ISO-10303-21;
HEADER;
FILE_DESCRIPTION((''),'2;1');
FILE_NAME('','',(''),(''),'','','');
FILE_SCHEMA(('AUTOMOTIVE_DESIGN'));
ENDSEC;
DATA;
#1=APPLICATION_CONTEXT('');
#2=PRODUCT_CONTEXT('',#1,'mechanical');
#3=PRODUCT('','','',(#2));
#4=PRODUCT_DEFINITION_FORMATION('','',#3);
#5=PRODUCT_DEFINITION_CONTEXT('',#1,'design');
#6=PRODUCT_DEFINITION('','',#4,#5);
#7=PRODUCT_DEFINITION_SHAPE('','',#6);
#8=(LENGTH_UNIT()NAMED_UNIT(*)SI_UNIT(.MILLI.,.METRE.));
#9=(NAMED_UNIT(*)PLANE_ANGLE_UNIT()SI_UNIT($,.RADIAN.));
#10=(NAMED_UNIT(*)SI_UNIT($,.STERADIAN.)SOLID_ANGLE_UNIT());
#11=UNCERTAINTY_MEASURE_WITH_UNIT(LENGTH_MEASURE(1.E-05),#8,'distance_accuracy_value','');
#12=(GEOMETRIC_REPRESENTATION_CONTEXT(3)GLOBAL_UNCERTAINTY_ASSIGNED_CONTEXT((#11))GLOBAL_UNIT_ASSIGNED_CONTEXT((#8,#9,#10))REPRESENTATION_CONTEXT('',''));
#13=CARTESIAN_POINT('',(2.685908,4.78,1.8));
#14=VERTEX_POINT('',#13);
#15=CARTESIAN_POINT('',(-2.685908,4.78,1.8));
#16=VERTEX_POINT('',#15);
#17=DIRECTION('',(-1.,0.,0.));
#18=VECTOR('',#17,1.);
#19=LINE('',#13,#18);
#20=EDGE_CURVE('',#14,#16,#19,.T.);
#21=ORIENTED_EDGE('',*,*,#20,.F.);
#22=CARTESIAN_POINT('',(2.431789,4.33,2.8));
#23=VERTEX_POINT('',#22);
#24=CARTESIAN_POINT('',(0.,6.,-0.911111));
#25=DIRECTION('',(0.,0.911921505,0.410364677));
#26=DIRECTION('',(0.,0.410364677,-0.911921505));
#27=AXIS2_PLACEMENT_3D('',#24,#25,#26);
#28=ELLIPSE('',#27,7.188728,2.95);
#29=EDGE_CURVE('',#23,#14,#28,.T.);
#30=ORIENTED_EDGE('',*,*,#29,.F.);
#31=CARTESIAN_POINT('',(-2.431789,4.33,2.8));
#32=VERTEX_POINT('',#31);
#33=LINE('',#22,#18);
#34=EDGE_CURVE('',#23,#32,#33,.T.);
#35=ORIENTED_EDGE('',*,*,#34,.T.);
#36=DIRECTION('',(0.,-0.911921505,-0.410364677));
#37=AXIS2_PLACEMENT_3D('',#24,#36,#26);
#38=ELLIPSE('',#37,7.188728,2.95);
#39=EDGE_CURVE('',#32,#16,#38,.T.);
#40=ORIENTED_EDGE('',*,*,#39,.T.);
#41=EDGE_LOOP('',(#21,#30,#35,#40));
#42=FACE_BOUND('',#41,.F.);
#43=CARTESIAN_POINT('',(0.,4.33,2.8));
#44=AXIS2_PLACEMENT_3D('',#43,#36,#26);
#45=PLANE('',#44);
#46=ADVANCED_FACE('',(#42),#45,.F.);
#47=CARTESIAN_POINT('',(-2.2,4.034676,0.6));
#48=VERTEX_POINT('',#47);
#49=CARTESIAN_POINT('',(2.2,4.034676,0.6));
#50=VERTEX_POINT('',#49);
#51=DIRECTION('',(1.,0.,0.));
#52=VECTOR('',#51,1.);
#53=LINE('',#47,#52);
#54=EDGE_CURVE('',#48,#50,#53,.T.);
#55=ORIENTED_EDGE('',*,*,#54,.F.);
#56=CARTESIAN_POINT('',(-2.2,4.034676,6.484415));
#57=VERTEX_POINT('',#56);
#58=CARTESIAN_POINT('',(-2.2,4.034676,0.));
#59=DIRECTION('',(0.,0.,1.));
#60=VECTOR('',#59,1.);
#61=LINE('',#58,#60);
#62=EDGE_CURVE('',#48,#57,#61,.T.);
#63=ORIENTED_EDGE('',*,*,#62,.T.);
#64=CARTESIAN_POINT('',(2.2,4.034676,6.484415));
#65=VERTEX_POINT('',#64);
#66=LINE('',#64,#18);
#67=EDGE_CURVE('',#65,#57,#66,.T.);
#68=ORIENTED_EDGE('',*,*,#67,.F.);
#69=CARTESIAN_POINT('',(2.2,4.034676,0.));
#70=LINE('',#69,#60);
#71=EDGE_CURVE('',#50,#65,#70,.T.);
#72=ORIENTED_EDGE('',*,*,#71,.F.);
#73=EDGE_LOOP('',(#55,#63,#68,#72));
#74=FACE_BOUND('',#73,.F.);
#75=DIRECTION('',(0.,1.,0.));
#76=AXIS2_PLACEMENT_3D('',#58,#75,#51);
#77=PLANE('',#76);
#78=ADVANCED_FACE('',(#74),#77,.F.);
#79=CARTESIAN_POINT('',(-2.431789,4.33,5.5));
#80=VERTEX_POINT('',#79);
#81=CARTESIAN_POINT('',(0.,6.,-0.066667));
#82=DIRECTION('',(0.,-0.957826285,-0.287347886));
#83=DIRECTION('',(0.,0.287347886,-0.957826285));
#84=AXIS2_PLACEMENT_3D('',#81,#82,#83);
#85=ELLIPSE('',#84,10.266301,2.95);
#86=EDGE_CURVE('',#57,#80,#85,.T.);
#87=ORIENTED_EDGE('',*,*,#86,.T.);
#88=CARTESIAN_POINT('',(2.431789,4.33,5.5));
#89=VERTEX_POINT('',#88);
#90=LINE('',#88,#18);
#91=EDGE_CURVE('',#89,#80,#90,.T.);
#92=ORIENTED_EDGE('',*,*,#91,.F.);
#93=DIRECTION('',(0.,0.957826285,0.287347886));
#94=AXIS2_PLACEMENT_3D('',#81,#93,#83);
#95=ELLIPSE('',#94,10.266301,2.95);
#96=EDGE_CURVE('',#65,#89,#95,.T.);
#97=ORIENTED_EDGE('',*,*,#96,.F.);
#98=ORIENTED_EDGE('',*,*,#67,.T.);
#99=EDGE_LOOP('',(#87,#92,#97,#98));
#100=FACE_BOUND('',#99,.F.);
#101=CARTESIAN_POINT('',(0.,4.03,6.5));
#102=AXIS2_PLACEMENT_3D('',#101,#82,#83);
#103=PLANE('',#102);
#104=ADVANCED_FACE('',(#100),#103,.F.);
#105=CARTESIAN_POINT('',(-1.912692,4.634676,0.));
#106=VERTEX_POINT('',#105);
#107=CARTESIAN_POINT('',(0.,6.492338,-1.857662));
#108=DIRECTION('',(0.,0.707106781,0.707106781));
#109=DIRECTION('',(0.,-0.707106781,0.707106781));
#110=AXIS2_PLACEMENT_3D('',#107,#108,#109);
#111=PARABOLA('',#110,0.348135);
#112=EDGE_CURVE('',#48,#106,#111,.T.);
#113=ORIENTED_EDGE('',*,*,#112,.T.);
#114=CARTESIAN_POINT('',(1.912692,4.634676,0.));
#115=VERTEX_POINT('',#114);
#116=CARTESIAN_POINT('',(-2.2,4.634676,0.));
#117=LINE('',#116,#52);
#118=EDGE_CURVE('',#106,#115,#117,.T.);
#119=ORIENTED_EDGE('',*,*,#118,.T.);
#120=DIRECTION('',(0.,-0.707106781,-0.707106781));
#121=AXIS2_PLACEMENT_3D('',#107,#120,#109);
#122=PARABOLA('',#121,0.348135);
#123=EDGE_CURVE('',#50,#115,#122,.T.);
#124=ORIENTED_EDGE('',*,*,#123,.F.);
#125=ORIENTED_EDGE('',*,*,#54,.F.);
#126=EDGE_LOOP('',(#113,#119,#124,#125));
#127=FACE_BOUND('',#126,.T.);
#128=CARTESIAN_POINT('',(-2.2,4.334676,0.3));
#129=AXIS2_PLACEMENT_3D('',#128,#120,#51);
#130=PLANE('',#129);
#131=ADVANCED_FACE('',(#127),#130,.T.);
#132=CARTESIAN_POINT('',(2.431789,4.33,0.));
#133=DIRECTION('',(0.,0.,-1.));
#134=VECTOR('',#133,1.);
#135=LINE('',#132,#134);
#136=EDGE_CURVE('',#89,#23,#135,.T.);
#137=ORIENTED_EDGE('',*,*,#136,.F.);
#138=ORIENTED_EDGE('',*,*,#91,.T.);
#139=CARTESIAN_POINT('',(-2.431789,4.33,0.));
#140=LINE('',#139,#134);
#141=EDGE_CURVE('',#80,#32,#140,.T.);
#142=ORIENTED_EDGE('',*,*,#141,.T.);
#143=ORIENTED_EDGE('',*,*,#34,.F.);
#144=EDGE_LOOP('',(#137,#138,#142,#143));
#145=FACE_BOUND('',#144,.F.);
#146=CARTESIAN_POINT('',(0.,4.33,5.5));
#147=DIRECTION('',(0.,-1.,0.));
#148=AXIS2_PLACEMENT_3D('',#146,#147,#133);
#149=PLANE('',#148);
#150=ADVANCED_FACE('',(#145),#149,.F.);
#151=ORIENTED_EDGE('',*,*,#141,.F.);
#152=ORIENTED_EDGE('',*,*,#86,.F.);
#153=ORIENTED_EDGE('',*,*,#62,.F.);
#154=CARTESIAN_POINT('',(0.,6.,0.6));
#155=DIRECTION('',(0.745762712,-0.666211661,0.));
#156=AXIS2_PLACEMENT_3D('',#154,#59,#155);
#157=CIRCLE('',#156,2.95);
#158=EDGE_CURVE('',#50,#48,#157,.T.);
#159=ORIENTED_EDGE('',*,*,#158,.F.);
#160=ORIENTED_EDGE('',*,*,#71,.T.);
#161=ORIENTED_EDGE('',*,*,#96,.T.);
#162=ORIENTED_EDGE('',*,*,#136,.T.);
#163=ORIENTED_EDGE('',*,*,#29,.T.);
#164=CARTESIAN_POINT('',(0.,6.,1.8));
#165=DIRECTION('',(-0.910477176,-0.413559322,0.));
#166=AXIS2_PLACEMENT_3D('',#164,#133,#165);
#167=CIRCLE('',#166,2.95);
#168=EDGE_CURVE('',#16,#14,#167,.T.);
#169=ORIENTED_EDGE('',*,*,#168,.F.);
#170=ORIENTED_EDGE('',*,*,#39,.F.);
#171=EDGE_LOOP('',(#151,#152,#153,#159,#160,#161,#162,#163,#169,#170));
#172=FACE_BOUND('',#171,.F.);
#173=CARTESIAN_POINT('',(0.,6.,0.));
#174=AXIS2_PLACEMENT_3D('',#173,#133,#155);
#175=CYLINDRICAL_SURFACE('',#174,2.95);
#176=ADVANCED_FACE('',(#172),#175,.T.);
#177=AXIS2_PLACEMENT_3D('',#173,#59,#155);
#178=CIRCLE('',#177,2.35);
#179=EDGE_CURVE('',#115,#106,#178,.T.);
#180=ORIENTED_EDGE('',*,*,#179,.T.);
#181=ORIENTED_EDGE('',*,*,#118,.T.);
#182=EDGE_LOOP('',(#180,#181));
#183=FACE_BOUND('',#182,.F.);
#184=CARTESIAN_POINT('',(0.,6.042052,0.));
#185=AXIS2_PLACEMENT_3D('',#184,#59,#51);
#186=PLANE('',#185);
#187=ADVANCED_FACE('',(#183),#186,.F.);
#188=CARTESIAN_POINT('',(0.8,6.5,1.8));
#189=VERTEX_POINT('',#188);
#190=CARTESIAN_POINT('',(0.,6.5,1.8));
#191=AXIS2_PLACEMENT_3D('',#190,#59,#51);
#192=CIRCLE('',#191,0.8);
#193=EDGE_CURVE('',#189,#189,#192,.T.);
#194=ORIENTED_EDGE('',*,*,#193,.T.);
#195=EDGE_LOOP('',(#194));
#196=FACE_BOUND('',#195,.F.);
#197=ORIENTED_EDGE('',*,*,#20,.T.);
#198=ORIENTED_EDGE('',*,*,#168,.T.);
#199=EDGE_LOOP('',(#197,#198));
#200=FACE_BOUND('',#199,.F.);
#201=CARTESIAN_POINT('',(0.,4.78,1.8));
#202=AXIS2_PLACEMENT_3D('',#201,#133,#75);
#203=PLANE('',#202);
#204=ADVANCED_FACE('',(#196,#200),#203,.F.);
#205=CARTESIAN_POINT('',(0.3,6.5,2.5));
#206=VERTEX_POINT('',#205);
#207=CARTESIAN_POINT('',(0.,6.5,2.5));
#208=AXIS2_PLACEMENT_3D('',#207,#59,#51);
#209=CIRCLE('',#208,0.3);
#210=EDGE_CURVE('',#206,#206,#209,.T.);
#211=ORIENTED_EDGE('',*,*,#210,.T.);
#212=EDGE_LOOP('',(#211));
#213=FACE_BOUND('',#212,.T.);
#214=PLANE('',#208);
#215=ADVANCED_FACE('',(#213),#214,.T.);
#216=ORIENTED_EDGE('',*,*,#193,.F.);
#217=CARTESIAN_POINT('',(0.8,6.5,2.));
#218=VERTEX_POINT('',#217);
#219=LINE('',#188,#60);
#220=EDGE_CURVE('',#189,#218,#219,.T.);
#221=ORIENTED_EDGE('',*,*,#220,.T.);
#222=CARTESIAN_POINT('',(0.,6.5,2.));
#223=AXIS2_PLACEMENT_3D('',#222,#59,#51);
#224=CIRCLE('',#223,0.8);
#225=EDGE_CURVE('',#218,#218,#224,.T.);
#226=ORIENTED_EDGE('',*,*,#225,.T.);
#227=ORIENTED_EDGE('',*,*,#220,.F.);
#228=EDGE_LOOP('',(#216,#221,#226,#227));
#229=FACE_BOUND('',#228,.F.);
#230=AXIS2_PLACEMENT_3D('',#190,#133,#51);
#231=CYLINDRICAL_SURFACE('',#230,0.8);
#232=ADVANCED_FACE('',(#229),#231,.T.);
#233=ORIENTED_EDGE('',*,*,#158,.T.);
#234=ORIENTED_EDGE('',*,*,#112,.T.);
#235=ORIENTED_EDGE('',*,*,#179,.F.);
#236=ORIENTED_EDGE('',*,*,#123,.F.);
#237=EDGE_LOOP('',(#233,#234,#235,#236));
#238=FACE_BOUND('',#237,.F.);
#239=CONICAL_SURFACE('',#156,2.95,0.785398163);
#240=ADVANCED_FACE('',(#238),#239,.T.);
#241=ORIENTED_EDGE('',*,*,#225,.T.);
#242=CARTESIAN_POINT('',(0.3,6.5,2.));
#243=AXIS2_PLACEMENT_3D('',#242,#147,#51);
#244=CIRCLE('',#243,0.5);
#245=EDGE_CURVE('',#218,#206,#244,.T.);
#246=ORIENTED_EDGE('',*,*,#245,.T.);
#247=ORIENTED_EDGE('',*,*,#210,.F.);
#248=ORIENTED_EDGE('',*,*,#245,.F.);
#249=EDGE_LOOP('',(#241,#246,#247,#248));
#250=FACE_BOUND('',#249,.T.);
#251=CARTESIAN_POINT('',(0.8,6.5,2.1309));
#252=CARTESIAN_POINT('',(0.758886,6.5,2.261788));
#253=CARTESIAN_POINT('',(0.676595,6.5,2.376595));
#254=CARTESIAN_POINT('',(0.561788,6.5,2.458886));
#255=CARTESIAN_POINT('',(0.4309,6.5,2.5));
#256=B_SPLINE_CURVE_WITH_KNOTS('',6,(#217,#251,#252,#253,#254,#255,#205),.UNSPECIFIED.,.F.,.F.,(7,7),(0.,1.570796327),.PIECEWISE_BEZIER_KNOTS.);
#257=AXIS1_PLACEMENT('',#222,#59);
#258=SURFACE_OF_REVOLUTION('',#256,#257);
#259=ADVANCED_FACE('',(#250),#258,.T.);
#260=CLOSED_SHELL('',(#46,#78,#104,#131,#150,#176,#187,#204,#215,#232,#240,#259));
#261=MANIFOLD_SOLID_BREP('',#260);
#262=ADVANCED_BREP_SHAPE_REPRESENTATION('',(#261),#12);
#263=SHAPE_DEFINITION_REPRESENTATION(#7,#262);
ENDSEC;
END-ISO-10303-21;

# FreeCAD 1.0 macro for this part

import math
import FreeCAD as App
import Part
import Sketcher
Q = App.Units.Quantity


def edges_at(feature, points):
    """Names of the edges that pass closest to the given points."""
    edges = feature.Shape.Edges
    near = lambda p: min(range(len(edges)), key=lambda i: edges[i].distToShape(Part.Vertex(*p))[0])
    return sorted({f"Edge{near(p) + 1}" for p in points})


def add_polygon(sketch, points):
    """Adds a closed chain of lines whose ends are joined by coincident constraints."""
    first, n = sketch.GeometryCount, len(points)
    for a, b in zip(points, points[1:] + points[:1]):
        sketch.addGeometry(Part.LineSegment(App.Vector(*a, 0), App.Vector(*b, 0)), False)
    for i in range(n):
        sketch.addConstraint(Sketcher.Constraint("Coincident", first + i, 2, first + (i + 1) % n, 1))

doc = App.newDocument("Part")
params = doc.addObject("Spreadsheet::Sheet", "Params")
for row, (alias, value) in enumerate([
    ("sketch1_radius", "2.95 mm"),
    ("sketch1_width", "4.4 mm"),
    ("pad1_length", "6.5 mm"),
    ("sketch2_height", "2.7 mm"),
    ("sketch2_height2", "4.7 mm"),
    ("sketch2_width", "5.22 mm"),
    ("sketch2_width2", "5.97 mm"),
    ("sketch3_diameter", "1.6 mm"),
    ("pad2_length", "0.7 mm"),
    ("fillet_radius", "0.5 mm"),
    ("chamfer_size", "0.6 mm"),
], start=1):
    params.set(f"A{row}", alias)
    params.set(f"B{row}", "=" + value)
    params.setAlias(f"B{row}", alias)

body = doc.addObject("PartDesign::Body", "Body")

# Sketch on XY plane
sketch1 = body.newObject("Sketcher::SketchObject", "Sketch")
sketch1.AttachmentSupport = (doc.getObject("XY_Plane"), [""])
sketch1.MapMode = "FlatFace"
sketch1.addGeometry([
    Part.ArcOfCircle(Part.Circle(App.Vector(0, 0, 0), App.Vector(0, 0, 1), 3), math.radians(-42), math.radians(222)),
    Part.LineSegment(App.Vector(-2.2, -2, 0), App.Vector(2.2, -2, 0)),
], False)
sketch1.addConstraint([
    Sketcher.Constraint("Coincident", 0, 1, 1, 2),
    Sketcher.Constraint("Coincident", 1, 1, 0, 2),
    Sketcher.Constraint("Horizontal", 1),
    Sketcher.Constraint("Coincident", 0, 3, -1, 1),
    Sketcher.Constraint("Radius", 0, Q("2.95 mm")),
    Sketcher.Constraint("DistanceX", 1, 1, 1, 2, Q("4.4 mm")),
])
sketch1.setExpression("Constraints[4]", "Params.sketch1_radius")
sketch1.setExpression("Constraints[5]", "Params.sketch1_width")
pad1 = body.newObject("PartDesign::Pad", "Pad")
pad1.Profile = sketch1
pad1.setExpression("Length", "Params.pad1_length")

# Sketch on YZ plane
sketch2 = body.newObject("Sketcher::SketchObject", "Sketch001")
sketch2.AttachmentSupport = (doc.getObject("YZ_Plane"), [""])
sketch2.MapMode = "FlatFace"
add_polygon(sketch2, [(-2, 6.5), (-1.7, 5.5), (-1.7, 2.8), (-1.2, 1.8), (4, 1.8), (4, 6.5)])  # lines 0-5
sketch2.addConstraint([
    Sketcher.Constraint("Vertical", 1),
    Sketcher.Constraint("Horizontal", 3),
    Sketcher.Constraint("Vertical", 4),
    Sketcher.Constraint("Horizontal", 5),
    Sketcher.Constraint("DistanceY", 1, 2, 1, 1, Q("2.7 mm")),
    Sketcher.Constraint("DistanceY", 4, 1, 4, 2, Q("4.7 mm")),
    Sketcher.Constraint("DistanceX", -1, 1, 3, 2, Q("4 mm")),
    Sketcher.Constraint("DistanceY", 2, 2, 1, 2, Q("1 mm")),
    Sketcher.Constraint("DistanceX", 3, 1, 3, 2, Q("5.22 mm")),
    Sketcher.Constraint("DistanceX", 5, 2, 5, 1, Q("5.97 mm")),
    Sketcher.Constraint("DistanceY", -1, 1, 0, 2, Q("5.5 mm")),
    Sketcher.Constraint("DistanceX", 5, 2, 0, 2, Q("0.3 mm")),
])
sketch2.setExpression("Constraints[10]", "Params.sketch2_height")
sketch2.setExpression("Constraints[11]", "Params.sketch2_height2")
sketch2.setExpression("Constraints[14]", "Params.sketch2_width")
sketch2.setExpression("Constraints[15]", "Params.sketch2_width2")
pocket1 = body.newObject("PartDesign::Pocket", "Pocket")
pocket1.Profile = sketch2
pocket1.Type = "ThroughAll"
pocket1.Midplane = True

# Sketch on XY plane
sketch3 = body.newObject("Sketcher::SketchObject", "Sketch002")
sketch3.AttachmentSupport = (doc.getObject("XY_Plane"), [""])
sketch3.MapMode = "FlatFace"
sketch3.AttachmentOffset = App.Placement(App.Vector(0, 0, 1.8), App.Rotation())
sketch3.addGeometry(Part.Circle(App.Vector(0, 0.5, 0), App.Vector(0, 0, 1), 0.8), False)
sketch3.addConstraint([
    Sketcher.Constraint("PointOnObject", 0, 3, -2),
    Sketcher.Constraint("Diameter", 0, Q("1.6 mm")),
    Sketcher.Constraint("DistanceY", -1, 1, 0, 3, Q("0.5 mm")),
])
sketch3.setExpression("Constraints[1]", "Params.sketch3_diameter")
pad2 = body.newObject("PartDesign::Pad", "Pad001")
pad2.Profile = sketch3
pad2.setExpression("Length", "Params.pad2_length")
doc.recompute()

fillet = body.newObject("PartDesign::Fillet", "Fillet")
fillet.Base = (pad2, edges_at(pad2, [(-0.8, 0.5, 2.5)]))
fillet.setExpression("Radius", "Params.fillet_radius")
doc.recompute()

chamfer = body.newObject("PartDesign::Chamfer", "Chamfer")
chamfer.Base = (fillet, edges_at(fillet, [(0, 2.95, 0), (0, -1.965, 0)]))
chamfer.setExpression("Size", "Params.chamfer_size")
body2 = doc.addObject("PartDesign::Body", "Body001")
doc.recompute()

body.Placement = App.Placement(App.Vector(0, 6, 0), App.Rotation(App.Vector(0, 0, 1), 0))
boolean = body2.newObject("PartDesign::Boolean", "Boolean")
boolean.Type = "Fuse"
boolean.addObjects([body])

doc.recompute()
